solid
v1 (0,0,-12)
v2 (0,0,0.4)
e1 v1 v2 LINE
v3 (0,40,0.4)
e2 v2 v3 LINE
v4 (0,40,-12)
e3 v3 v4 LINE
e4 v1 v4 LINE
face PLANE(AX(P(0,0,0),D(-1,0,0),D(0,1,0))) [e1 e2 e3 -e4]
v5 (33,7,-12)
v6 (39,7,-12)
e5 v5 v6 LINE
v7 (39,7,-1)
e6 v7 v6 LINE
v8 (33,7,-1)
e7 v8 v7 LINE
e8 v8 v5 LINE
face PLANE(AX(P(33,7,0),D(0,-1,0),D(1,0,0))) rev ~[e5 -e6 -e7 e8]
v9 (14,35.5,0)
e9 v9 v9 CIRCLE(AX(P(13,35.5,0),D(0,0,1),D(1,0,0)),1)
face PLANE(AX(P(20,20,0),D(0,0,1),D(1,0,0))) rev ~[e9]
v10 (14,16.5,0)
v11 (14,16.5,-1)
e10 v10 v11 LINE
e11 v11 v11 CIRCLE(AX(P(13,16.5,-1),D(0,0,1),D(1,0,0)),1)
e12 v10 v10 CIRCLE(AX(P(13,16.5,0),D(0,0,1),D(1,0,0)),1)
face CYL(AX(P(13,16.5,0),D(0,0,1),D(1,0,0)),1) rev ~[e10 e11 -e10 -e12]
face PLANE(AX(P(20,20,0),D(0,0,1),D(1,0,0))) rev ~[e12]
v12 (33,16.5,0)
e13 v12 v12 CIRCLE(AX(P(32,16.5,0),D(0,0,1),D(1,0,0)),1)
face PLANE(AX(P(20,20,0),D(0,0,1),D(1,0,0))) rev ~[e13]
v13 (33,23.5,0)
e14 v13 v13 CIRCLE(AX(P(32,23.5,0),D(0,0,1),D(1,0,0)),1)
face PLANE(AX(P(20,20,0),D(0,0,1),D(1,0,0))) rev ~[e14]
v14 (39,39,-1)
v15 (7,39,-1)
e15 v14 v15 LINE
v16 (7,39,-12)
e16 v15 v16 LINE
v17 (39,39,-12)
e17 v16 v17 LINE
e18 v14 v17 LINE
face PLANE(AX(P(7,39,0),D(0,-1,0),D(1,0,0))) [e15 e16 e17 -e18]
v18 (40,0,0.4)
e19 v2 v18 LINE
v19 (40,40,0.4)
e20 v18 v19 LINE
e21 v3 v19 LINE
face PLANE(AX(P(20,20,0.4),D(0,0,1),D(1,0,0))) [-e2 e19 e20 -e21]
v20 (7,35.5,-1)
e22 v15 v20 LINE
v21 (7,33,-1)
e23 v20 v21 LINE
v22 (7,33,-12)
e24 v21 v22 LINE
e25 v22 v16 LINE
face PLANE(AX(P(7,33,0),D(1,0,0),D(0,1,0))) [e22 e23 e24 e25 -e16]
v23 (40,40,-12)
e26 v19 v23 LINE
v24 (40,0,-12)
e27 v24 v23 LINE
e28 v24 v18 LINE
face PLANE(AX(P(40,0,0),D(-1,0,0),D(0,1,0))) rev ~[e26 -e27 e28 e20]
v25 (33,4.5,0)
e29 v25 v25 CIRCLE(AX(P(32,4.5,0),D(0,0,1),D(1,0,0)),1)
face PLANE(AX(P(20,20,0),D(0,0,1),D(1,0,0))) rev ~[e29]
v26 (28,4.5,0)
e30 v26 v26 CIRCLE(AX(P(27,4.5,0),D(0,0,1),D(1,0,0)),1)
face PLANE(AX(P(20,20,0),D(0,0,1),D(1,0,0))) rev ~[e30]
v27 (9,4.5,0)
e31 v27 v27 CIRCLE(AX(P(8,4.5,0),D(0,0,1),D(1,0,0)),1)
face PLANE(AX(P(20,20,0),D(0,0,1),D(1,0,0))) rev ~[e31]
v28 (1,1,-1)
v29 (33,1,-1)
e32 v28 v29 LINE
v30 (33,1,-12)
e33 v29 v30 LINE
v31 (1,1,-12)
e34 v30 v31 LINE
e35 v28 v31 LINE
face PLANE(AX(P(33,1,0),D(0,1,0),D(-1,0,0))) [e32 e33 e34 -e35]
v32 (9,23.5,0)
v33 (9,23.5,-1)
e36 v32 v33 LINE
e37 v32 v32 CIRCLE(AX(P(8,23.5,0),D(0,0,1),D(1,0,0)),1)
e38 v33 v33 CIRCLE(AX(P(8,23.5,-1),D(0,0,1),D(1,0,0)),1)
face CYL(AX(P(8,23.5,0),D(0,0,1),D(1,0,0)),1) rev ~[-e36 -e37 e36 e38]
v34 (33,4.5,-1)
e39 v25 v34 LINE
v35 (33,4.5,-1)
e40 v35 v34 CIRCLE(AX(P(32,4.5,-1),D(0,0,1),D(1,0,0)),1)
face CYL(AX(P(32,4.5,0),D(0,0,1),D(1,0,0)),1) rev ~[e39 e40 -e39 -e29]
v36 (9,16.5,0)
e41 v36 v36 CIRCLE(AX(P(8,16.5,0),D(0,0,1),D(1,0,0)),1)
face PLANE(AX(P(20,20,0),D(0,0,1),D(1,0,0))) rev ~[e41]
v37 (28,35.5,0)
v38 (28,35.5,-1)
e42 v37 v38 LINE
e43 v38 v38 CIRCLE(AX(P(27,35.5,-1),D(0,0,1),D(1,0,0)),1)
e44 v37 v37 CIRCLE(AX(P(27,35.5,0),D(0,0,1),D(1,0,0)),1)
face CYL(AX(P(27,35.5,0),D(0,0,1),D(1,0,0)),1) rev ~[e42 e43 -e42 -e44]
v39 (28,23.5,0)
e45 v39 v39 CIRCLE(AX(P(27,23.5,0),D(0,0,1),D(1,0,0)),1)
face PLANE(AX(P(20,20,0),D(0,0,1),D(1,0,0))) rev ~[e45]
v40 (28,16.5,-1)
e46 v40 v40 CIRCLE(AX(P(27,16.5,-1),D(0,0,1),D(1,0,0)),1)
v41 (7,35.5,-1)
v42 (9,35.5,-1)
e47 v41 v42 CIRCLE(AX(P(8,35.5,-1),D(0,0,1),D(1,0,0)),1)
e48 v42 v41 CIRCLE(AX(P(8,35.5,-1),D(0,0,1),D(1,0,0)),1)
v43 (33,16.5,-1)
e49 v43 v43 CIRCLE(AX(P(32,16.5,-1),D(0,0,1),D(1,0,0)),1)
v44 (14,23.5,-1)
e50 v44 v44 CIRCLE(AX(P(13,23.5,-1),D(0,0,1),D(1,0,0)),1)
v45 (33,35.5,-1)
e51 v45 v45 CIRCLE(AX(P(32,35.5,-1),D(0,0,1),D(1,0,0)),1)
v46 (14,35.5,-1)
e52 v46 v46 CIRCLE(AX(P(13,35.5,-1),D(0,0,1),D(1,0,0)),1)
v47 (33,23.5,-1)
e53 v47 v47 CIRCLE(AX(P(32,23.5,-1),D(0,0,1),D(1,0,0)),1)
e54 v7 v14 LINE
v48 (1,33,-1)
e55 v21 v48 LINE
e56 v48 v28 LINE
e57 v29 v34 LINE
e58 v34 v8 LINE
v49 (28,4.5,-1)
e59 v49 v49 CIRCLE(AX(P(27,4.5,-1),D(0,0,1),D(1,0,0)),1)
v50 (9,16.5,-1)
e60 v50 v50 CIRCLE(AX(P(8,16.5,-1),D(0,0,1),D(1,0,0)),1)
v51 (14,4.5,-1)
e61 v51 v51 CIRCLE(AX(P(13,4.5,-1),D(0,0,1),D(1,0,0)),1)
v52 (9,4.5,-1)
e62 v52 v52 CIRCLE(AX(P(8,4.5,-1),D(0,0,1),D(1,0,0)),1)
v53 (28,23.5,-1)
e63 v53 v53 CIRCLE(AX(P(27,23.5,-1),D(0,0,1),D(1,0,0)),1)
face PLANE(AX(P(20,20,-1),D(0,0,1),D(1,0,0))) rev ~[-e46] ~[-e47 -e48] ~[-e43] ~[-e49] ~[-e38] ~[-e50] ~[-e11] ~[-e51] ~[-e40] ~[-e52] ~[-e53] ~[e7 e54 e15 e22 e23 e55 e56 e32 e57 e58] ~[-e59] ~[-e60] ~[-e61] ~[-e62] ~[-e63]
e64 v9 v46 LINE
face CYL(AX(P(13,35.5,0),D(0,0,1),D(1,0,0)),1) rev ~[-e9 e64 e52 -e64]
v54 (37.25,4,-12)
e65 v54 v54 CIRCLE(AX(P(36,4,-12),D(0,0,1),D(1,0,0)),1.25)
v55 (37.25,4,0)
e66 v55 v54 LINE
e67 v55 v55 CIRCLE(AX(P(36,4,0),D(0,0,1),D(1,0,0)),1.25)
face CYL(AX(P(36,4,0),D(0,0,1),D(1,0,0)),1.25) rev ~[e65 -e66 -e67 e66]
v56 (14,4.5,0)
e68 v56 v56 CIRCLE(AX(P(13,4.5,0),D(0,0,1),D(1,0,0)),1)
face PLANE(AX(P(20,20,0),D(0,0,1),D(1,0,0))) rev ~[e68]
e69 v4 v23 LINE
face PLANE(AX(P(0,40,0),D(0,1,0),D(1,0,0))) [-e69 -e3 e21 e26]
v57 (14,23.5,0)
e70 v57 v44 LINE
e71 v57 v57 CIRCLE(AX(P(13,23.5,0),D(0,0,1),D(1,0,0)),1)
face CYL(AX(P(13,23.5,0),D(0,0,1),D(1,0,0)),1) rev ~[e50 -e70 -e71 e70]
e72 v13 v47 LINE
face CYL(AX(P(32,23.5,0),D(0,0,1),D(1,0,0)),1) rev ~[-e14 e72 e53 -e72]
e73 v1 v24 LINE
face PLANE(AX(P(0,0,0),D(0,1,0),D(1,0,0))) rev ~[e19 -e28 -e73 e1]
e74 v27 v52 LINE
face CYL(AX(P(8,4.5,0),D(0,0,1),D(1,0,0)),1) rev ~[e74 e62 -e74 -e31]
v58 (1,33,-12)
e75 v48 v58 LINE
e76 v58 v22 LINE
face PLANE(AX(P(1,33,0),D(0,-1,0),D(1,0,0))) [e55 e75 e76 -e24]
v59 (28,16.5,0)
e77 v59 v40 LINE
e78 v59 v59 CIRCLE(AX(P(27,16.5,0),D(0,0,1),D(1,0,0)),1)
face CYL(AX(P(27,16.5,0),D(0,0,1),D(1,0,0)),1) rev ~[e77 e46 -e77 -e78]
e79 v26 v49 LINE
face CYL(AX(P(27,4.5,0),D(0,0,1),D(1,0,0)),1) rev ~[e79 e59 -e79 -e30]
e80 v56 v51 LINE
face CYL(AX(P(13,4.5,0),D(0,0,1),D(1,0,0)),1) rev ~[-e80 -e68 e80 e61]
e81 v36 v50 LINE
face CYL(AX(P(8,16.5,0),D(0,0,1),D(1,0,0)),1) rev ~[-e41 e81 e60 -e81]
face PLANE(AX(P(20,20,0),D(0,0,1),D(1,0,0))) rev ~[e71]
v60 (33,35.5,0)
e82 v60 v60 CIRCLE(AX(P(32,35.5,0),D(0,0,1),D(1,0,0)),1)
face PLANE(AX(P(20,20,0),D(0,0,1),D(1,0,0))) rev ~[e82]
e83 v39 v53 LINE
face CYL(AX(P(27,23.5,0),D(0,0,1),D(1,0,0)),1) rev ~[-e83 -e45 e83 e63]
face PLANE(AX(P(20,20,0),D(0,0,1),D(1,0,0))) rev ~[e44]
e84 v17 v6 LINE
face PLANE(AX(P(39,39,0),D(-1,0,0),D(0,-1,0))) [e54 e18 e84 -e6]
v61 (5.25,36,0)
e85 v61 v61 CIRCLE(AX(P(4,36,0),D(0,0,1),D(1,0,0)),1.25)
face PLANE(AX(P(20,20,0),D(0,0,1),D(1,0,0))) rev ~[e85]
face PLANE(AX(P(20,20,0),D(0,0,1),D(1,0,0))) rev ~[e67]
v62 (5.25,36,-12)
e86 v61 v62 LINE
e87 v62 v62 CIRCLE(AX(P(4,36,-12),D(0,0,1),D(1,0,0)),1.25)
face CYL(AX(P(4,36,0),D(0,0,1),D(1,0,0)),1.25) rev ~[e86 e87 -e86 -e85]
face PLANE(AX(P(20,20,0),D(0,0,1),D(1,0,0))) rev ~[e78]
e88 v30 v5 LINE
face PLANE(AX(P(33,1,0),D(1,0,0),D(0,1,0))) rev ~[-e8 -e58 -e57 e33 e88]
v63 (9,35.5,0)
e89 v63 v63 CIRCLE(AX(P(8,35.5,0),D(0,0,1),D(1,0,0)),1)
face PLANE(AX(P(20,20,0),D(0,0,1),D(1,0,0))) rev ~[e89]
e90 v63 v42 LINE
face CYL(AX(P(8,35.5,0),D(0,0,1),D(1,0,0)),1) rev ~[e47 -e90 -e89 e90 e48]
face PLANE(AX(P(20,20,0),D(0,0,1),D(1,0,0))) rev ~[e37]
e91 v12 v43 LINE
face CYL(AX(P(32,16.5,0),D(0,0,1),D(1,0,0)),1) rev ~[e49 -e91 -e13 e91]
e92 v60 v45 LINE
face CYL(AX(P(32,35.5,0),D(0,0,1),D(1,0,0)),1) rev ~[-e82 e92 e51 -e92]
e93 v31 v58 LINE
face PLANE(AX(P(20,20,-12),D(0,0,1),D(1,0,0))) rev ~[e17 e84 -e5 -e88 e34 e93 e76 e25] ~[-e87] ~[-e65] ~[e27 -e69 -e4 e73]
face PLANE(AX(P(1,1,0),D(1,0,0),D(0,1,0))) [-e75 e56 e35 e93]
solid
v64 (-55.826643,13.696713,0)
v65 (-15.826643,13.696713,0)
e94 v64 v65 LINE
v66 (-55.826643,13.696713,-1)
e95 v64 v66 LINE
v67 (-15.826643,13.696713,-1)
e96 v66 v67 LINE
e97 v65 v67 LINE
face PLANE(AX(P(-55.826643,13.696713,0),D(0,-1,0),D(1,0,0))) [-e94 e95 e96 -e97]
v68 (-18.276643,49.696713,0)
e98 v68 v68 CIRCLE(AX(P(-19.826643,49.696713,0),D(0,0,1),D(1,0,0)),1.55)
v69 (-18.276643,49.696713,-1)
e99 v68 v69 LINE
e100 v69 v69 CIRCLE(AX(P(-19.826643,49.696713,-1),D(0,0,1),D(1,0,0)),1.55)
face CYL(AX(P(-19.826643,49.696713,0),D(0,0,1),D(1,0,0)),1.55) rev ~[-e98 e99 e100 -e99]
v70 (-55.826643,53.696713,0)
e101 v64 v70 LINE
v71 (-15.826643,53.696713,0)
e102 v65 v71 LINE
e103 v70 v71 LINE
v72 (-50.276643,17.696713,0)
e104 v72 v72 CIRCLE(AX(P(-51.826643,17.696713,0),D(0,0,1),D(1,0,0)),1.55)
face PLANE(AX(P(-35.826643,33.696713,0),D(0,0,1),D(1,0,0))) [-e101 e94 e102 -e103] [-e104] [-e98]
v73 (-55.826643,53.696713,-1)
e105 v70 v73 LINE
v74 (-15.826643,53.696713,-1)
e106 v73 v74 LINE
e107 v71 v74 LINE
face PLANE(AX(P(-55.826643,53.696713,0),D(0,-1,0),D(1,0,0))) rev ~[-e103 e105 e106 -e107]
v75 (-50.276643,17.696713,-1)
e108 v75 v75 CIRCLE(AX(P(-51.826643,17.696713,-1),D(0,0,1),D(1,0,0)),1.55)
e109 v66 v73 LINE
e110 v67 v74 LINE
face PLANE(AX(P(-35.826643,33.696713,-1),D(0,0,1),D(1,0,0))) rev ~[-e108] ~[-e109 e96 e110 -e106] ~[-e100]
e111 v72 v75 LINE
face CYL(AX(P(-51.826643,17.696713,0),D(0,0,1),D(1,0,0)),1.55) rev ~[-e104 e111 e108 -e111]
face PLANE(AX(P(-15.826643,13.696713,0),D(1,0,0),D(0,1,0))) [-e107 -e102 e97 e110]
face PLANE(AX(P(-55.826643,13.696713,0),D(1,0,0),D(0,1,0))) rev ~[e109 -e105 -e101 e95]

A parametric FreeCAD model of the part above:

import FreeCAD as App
import Part
import Sketcher

V = App.Vector
Q = App.Units.Quantity


def add_polygon(sketch, points):
    """Adds a closed chain of lines whose ends are joined by coincident constraints."""
    first, n = sketch.GeometryCount, len(points)
    for a, b in zip(points, points[1:] + points[:1]):
        sketch.addGeometry(Part.LineSegment(App.Vector(*a, 0), App.Vector(*b, 0)), False)
    for i in range(n):
        sketch.addConstraint(Sketcher.Constraint("Coincident", first + i, 2, first + (i + 1) % n, 1))

doc = App.newDocument("Part")
body = doc.addObject("PartDesign::Body", "Body")

# Sketch on XY plane
sketch1 = body.newObject("Sketcher::SketchObject", "Sketch")
sketch1.AttachmentSupport = (doc.getObject("XY_Plane"), [""])
sketch1.MapMode = "FlatFace"
add_polygon(sketch1, [(0, 40), (0, 0), (40, 0), (40, 40)])  # lines 0-3
add_polygon(sketch1, [(33, 1), (1, 1), (1, 33), (7, 33), (7, 39), (39, 39), (39, 7), (33, 7)])  # lines 4-11
sketch1.addConstraint([
    Sketcher.Constraint("Vertical", 0),
    Sketcher.Constraint("Horizontal", 1),
    Sketcher.Constraint("Vertical", 2),
    Sketcher.Constraint("Horizontal", 3),
    Sketcher.Constraint("Horizontal", 4),
    Sketcher.Constraint("Vertical", 5),
    Sketcher.Constraint("Horizontal", 6),
    Sketcher.Constraint("Vertical", 7),
    Sketcher.Constraint("Horizontal", 8),
    Sketcher.Constraint("Vertical", 9),
    Sketcher.Constraint("Horizontal", 10),
    Sketcher.Constraint("Vertical", 11),
    Sketcher.Constraint("Coincident", 0, 2, -1, 1),
    Sketcher.Constraint("Equal", 4, 8),
    Sketcher.Constraint("Equal", 3, 0),
    Sketcher.Constraint("Equal", 8, 5),
    Sketcher.Constraint("Equal", 10, 7),
    Sketcher.Constraint("Equal", 5, 9),
    Sketcher.Constraint("DistanceX", 1, 1, 1, 2, Q("40 mm")),
    Sketcher.Constraint("DistanceX", 4, 2, 4, 1, Q("32 mm")),
    Sketcher.Constraint("DistanceX", 6, 1, 6, 2, Q("6 mm")),
    Sketcher.Constraint("DistanceX", -1, 1, 4, 2, Q("1 mm")),
    Sketcher.Constraint("DistanceY", -1, 1, 4, 2, Q("1 mm")),
])
pad1 = body.newObject("PartDesign::Pad", "Pad")
pad1.Profile = sketch1
pad1.Length = 12
pad1.Reversed = True

# Sketch on XY plane
sketch2 = body.newObject("Sketcher::SketchObject", "Sketch001")
sketch2.AttachmentSupport = (doc.getObject("XY_Plane"), [""])
sketch2.MapMode = "FlatFace"
add_polygon(sketch2, [(1, 33), (1, 1), (33, 1), (33, 7), (39, 7), (39, 39), (7, 39), (7, 33)])  # lines 0-7
sketch2.addConstraint([
    Sketcher.Constraint("Vertical", 0),
    Sketcher.Constraint("Horizontal", 1),
    Sketcher.Constraint("Vertical", 2),
    Sketcher.Constraint("Horizontal", 3),
    Sketcher.Constraint("Vertical", 4),
    Sketcher.Constraint("Horizontal", 5),
    Sketcher.Constraint("Vertical", 6),
    Sketcher.Constraint("Horizontal", 7),
    Sketcher.Constraint("Equal", 1, 5),
    Sketcher.Constraint("Equal", 5, 0),
    Sketcher.Constraint("Equal", 7, 2),
    Sketcher.Constraint("Equal", 0, 4),
    Sketcher.Constraint("DistanceX", 1, 1, 1, 2, Q("32 mm")),
    Sketcher.Constraint("DistanceX", 3, 1, 3, 2, Q("6 mm")),
    Sketcher.Constraint("DistanceX", -1, 1, 0, 2, Q("1 mm")),
    Sketcher.Constraint("DistanceY", -1, 1, 0, 2, Q("1 mm")),
])
pad2 = body.newObject("PartDesign::Pad", "Pad001")
pad2.Profile = sketch2
pad2.Length = 1
pad2.Reversed = True

# Sketch on XY plane
sketch3 = body.newObject("Sketcher::SketchObject", "Sketch002")
sketch3.AttachmentSupport = (doc.getObject("XY_Plane"), [""])
sketch3.MapMode = "FlatFace"
sketch3.addGeometry([
    Part.Circle(V(8, 16.5, 0), V(0, 0, 1), 1),  # 0
    Part.Circle(V(13, 16.5, 0), V(0, 0, 1), 1),  # 1
    Part.Circle(V(8, 4.5, 0), V(0, 0, 1), 1),  # 2
    Part.Circle(V(13, 4.5, 0), V(0, 0, 1), 1),  # 3
    Part.Circle(V(8, 35.5, 0), V(0, 0, 1), 1),  # 4
    Part.Circle(V(13, 35.5, 0), V(0, 0, 1), 1),  # 5
    Part.Circle(V(8, 23.5, 0), V(0, 0, 1), 1),  # 6
    Part.Circle(V(13, 23.5, 0), V(0, 0, 1), 1),  # 7
    Part.Circle(V(27, 35.5, 0), V(0, 0, 1), 1),  # 8
    Part.Circle(V(32, 35.5, 0), V(0, 0, 1), 1),  # 9
    Part.Circle(V(27, 23.5, 0), V(0, 0, 1), 1),  # 10
    Part.Circle(V(32, 23.5, 0), V(0, 0, 1), 1),  # 11
    Part.Circle(V(27, 16.5, 0), V(0, 0, 1), 1),  # 12
    Part.Circle(V(32, 16.5, 0), V(0, 0, 1), 1),  # 13
    Part.Circle(V(27, 4.5, 0), V(0, 0, 1), 1),  # 14
    Part.Circle(V(32, 4.5, 0), V(0, 0, 1), 1),  # 15
], False)
sketch3.addConstraint([
    Sketcher.Constraint("Equal", 0, 1),
    Sketcher.Constraint("Equal", 1, 2),
    Sketcher.Constraint("Equal", 2, 3),
    Sketcher.Constraint("Equal", 3, 4),
    Sketcher.Constraint("Equal", 4, 5),
    Sketcher.Constraint("Equal", 5, 6),
    Sketcher.Constraint("Equal", 6, 7),
    Sketcher.Constraint("Equal", 7, 8),
    Sketcher.Constraint("Equal", 8, 9),
    Sketcher.Constraint("Equal", 9, 10),
    Sketcher.Constraint("Equal", 10, 11),
    Sketcher.Constraint("Equal", 11, 12),
    Sketcher.Constraint("Equal", 12, 13),
    Sketcher.Constraint("Equal", 13, 14),
    Sketcher.Constraint("Equal", 14, 15),
    Sketcher.Constraint("Horizontal", 0, 3, 1, 3),
    Sketcher.Constraint("Horizontal", 2, 3, 3, 3),
    Sketcher.Constraint("Horizontal", 4, 3, 5, 3),
    Sketcher.Constraint("Horizontal", 6, 3, 7, 3),
    Sketcher.Constraint("Horizontal", 5, 3, 8, 3),
    Sketcher.Constraint("Horizontal", 8, 3, 9, 3),
    Sketcher.Constraint("Horizontal", 7, 3, 10, 3),
    Sketcher.Constraint("Horizontal", 10, 3, 11, 3),
    Sketcher.Constraint("Horizontal", 1, 3, 12, 3),
    Sketcher.Constraint("Horizontal", 12, 3, 13, 3),
    Sketcher.Constraint("Horizontal", 3, 3, 14, 3),
    Sketcher.Constraint("Horizontal", 14, 3, 15, 3),
    Sketcher.Constraint("Vertical", 0, 3, 2, 3),
    Sketcher.Constraint("Vertical", 1, 3, 3, 3),
    Sketcher.Constraint("Vertical", 2, 3, 4, 3),
    Sketcher.Constraint("Vertical", 3, 3, 5, 3),
    Sketcher.Constraint("Vertical", 4, 3, 6, 3),
    Sketcher.Constraint("Vertical", 5, 3, 7, 3),
    Sketcher.Constraint("Vertical", 8, 3, 10, 3),
    Sketcher.Constraint("Vertical", 9, 3, 11, 3),
    Sketcher.Constraint("Vertical", 10, 3, 12, 3),
    Sketcher.Constraint("Vertical", 11, 3, 13, 3),
    Sketcher.Constraint("Vertical", 12, 3, 14, 3),
    Sketcher.Constraint("Vertical", 13, 3, 15, 3),
    Sketcher.Constraint("Diameter", 0, Q("2 mm")),
    Sketcher.Constraint("DistanceX", -1, 1, 0, 3, Q("8 mm")),
    Sketcher.Constraint("DistanceX", -1, 1, 1, 3, Q("13 mm")),
    Sketcher.Constraint("DistanceX", -1, 1, 8, 3, Q("27 mm")),
    Sketcher.Constraint("DistanceX", -1, 1, 9, 3, Q("32 mm")),
    Sketcher.Constraint("DistanceY", 2, 3, 0, 3, Q("12 mm")),
    Sketcher.Constraint("DistanceY", 0, 3, 4, 3, Q("19 mm")),
    Sketcher.Constraint("DistanceY", 0, 3, 6, 3, Q("7 mm")),
    Sketcher.Constraint("DistanceY", -1, 1, 0, 3, Q("16.5 mm")),
])
pocket1 = body.newObject("PartDesign::Pocket", "Pocket")
pocket1.Profile = sketch3
pocket1.Length = 2

# Sketch on XY plane
sketch4 = body.newObject("Sketcher::SketchObject", "Sketch003")
sketch4.AttachmentSupport = (doc.getObject("XY_Plane"), [""])
sketch4.MapMode = "FlatFace"
sketch4.addGeometry([
    Part.Circle(V(36, 4, 0), V(0, 0, 1), 1.25),
    Part.Circle(V(4, 36, 0), V(0, 0, 1), 1.25),
], False)
sketch4.addConstraint([
    Sketcher.Constraint("Equal", 0, 1),
    Sketcher.Constraint("Diameter", 0, Q("2.5 mm")),
    Sketcher.Constraint("DistanceX", -1, 1, 0, 3, Q("36 mm")),
    Sketcher.Constraint("DistanceY", -1, 1, 0, 3, Q("4 mm")),
    Sketcher.Constraint("DistanceX", -1, 1, 1, 3, Q("4 mm")),
    Sketcher.Constraint("DistanceY", -1, 1, 1, 3, Q("36 mm")),
])
pocket2 = body.newObject("PartDesign::Pocket", "Pocket001")
pocket2.Profile = sketch4
pocket2.Length = 25

# Sketch on XY plane
sketch5 = body.newObject("Sketcher::SketchObject", "Sketch004")
sketch5.AttachmentSupport = (doc.getObject("XY_Plane"), [""])
sketch5.MapMode = "FlatFace"
add_polygon(sketch5, [(0, 40), (0, 0), (40, 0), (40, 40)])  # lines 0-3
sketch5.addConstraint([
    Sketcher.Constraint("Vertical", 0),
    Sketcher.Constraint("Horizontal", 1),
    Sketcher.Constraint("Vertical", 2),
    Sketcher.Constraint("Horizontal", 3),
    Sketcher.Constraint("Coincident", 0, 2, -1, 1),
    Sketcher.Constraint("Equal", 3, 0),
    Sketcher.Constraint("DistanceX", 1, 1, 1, 2, Q("40 mm")),
])
pad3 = body.newObject("PartDesign::Pad", "Pad002")
pad3.Profile = sketch5
pad3.Length = 0.4
body2 = doc.addObject("PartDesign::Body", "Body001")

# Sketch on XY plane
sketch6 = body2.newObject("Sketcher::SketchObject", "Sketch005")
sketch6.AttachmentSupport = (doc.getObject("XY_Plane001"), [""])
sketch6.MapMode = "FlatFace"
add_polygon(sketch6, [(-55.826643, 53.696713), (-55.826643, 13.696713), (-15.826643, 13.696713), (-15.826643, 53.696713)])  # lines 0-3
sketch6.addGeometry(Part.Circle(V(-51.826643, 17.696713, 0), V(0, 0, 1), 1.55), False)  # 4
sketch6.addGeometry(Part.Circle(V(-19.826643, 49.696713, 0), V(0, 0, 1), 1.55), False)  # 5
sketch6.addConstraint([
    Sketcher.Constraint("Vertical", 0),
    Sketcher.Constraint("Horizontal", 1),
    Sketcher.Constraint("Vertical", 2),
    Sketcher.Constraint("Horizontal", 3),
    Sketcher.Constraint("Equal", 4, 5),
    Sketcher.Constraint("Equal", 3, 0),
    Sketcher.Constraint("Diameter", 4, Q("3.1 mm")),
    Sketcher.Constraint("DistanceX", 1, 1, 1, 2, Q("40 mm")),
    Sketcher.Constraint("DistanceX", 4, 3, 5, 3, Q("32 mm")),
    Sketcher.Constraint("DistanceY", 4, 3, 5, 3, Q("32 mm")),
    Sketcher.Constraint("DistanceX", 0, 2, 4, 3, Q("4 mm")),
    Sketcher.Constraint("DistanceY", 0, 2, 4, 3, Q("4 mm")),
    Sketcher.Constraint("DistanceX", 4, 3, -1, 1, Q("51.826643 mm")),
    Sketcher.Constraint("DistanceY", -1, 1, 4, 3, Q("17.696713 mm")),
])
pad4 = body2.newObject("PartDesign::Pad", "Pad003")
pad4.Profile = sketch6
pad4.Length = 1
pad4.Reversed = True

doc.recompute()
